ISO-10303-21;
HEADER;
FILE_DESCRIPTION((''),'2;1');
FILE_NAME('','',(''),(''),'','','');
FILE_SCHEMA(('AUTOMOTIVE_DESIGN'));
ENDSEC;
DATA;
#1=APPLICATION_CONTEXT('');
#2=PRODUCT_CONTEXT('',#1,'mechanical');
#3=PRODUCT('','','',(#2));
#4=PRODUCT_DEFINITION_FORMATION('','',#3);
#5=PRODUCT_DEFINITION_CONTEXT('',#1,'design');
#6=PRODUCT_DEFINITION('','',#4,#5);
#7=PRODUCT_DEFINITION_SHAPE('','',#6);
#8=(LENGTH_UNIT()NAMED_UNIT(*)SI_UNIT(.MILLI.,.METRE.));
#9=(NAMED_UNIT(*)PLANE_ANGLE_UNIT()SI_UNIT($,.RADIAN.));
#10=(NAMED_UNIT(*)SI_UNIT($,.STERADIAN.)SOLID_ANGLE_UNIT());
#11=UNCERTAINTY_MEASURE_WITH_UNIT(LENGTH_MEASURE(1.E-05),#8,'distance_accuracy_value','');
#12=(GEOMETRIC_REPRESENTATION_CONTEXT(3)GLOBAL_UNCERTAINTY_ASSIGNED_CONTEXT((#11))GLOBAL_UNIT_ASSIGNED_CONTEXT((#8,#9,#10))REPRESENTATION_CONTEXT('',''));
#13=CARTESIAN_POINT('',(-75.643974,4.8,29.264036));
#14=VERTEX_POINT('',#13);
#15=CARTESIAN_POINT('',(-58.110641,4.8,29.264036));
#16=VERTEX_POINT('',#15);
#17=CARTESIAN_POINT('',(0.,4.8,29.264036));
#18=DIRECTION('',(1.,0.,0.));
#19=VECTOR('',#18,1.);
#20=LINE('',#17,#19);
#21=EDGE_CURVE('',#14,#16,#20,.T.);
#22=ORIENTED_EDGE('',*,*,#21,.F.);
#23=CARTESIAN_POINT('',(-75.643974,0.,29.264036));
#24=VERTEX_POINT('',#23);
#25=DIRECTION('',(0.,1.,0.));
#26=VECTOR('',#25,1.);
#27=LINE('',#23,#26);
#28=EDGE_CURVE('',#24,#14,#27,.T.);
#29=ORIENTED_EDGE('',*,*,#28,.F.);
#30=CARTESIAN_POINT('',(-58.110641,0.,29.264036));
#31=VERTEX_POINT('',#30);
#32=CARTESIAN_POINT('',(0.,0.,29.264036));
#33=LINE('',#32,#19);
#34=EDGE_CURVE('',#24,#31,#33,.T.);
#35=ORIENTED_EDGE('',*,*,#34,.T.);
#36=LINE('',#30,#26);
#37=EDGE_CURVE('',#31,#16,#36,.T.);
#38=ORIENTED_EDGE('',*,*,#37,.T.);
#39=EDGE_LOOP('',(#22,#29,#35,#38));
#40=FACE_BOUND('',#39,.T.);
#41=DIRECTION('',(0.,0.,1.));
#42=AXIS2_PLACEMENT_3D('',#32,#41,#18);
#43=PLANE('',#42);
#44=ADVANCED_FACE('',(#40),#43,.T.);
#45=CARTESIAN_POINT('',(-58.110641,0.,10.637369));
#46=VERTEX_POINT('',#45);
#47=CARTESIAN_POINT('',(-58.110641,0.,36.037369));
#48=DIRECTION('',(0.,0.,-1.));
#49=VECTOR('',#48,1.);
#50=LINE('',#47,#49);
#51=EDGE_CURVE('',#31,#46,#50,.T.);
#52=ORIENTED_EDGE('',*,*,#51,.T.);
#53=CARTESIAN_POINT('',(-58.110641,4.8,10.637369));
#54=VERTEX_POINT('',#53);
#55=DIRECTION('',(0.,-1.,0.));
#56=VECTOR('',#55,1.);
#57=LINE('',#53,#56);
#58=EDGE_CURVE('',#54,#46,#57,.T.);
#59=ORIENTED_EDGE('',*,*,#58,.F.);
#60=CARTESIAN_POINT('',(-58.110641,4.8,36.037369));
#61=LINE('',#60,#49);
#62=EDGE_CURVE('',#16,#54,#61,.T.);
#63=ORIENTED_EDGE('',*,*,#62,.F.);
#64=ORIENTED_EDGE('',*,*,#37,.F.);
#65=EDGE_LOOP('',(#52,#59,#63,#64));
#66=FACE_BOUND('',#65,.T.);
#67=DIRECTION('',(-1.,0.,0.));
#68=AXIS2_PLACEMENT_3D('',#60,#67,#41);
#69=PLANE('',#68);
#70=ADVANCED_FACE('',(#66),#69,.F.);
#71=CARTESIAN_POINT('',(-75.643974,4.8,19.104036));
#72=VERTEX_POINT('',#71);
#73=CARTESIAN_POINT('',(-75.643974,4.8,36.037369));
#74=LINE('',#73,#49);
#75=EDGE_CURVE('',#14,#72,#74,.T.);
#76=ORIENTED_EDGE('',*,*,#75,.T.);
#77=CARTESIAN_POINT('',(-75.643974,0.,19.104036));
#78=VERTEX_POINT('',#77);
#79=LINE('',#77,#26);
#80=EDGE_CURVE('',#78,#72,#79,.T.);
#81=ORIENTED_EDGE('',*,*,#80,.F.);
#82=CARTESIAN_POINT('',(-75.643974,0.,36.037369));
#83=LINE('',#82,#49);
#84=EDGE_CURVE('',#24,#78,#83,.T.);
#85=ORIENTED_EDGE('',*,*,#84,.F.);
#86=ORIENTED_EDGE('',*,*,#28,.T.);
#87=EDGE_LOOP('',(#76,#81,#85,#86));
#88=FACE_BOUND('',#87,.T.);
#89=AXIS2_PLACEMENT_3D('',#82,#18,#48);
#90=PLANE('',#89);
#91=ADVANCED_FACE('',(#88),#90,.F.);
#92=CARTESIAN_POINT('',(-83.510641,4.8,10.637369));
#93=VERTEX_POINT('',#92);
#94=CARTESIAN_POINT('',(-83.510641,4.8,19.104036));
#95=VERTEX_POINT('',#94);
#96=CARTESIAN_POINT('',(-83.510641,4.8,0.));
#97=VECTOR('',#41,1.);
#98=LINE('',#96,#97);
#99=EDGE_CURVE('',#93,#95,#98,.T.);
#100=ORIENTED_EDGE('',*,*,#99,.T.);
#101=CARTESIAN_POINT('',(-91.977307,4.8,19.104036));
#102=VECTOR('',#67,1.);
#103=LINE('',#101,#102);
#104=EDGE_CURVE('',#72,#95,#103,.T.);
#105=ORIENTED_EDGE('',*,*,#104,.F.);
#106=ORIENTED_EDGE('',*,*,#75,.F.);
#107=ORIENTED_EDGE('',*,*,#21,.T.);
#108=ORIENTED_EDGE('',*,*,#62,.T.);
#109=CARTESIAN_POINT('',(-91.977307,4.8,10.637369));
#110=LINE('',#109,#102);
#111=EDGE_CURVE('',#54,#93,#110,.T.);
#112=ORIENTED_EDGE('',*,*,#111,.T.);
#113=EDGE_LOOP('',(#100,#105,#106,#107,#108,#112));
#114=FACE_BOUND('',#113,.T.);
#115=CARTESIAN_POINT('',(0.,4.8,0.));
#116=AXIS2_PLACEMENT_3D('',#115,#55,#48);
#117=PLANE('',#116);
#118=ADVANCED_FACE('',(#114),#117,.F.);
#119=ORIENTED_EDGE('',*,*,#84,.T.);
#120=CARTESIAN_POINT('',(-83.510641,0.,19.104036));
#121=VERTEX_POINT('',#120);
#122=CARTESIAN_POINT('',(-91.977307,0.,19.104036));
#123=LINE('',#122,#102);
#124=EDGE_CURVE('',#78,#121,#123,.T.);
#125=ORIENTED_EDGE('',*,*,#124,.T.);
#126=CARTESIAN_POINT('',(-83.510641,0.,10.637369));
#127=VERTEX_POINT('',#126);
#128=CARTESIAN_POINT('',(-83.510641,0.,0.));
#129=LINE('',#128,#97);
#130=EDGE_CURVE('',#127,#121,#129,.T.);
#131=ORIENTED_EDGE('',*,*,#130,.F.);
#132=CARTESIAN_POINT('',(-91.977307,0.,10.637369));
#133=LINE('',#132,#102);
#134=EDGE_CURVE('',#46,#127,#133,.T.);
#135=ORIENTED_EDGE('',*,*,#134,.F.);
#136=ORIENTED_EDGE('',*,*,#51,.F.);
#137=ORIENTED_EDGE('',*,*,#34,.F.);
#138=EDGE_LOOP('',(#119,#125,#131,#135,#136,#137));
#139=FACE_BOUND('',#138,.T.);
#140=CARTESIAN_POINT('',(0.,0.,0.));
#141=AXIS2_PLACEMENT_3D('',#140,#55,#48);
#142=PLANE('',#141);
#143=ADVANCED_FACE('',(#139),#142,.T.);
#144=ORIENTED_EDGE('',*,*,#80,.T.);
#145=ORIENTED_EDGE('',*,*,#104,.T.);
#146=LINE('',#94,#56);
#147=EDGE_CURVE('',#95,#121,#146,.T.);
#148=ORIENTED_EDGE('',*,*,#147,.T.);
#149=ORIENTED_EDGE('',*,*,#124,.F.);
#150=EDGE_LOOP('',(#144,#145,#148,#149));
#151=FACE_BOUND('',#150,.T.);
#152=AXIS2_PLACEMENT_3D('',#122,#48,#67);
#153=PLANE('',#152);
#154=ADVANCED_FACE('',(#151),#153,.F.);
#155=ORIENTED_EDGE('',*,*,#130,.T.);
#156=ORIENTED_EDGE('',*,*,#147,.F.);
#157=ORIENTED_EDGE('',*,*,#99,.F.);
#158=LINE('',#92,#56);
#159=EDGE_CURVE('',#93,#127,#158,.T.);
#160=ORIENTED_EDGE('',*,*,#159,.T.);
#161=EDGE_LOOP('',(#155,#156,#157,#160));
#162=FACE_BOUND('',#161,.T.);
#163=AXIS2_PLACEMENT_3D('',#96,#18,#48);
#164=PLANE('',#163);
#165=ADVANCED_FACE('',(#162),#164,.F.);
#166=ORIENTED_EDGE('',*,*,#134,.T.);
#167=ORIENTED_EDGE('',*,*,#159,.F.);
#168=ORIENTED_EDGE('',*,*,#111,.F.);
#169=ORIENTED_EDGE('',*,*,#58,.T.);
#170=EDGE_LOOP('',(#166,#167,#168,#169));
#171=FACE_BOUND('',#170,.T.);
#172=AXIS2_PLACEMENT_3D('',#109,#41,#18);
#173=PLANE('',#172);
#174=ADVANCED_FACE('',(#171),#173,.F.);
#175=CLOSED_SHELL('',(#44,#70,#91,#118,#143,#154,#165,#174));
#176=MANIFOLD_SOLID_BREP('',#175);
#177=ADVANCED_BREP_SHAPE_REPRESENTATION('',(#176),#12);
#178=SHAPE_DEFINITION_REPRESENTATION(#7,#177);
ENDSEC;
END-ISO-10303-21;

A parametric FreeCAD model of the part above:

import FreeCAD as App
import Part
import Sketcher
from FreeCAD import Vector
Q = App.Units.Quantity

doc = App.newDocument("Part")
body = doc.addObject("PartDesign::Body", "Body")

sketch1 = body.newObject("Sketcher::SketchObject", "Sketch")
sketch1.AttachmentSupport = (doc.getObject("XZ_Plane"), [""])
sketch1.MapMode = "FlatFace"
sketch1.addGeometry(Part.LineSegment(Vector(-92, 11, 0), Vector(-92, 36, 0)), False)
sketch1.addGeometry(Part.LineSegment(Vector(-92, 36, 0), Vector(-58, 36, 0)), False)
sketch1.addGeometry(Part.LineSegment(Vector(-58, 36, 0), Vector(-58, 11, 0)), False)
sketch1.addGeometry(Part.LineSegment(Vector(-58, 11, 0), Vector(-92, 11, 0)), False)
sketch1.addConstraint(Sketcher.Constraint("Coincident", 0, 2, 1, 1))
sketch1.addConstraint(Sketcher.Constraint("Coincident", 1, 2, 2, 1))
sketch1.addConstraint(Sketcher.Constraint("Coincident", 2, 2, 3, 1))
sketch1.addConstraint(Sketcher.Constraint("Coincident", 3, 2, 0, 1))
sketch1.addConstraint(Sketcher.Constraint("Vertical", 0))
sketch1.addConstraint(Sketcher.Constraint("Horizontal", 1))
sketch1.addConstraint(Sketcher.Constraint("Vertical", 2))
sketch1.addConstraint(Sketcher.Constraint("Horizontal", 3))
sketch1.addConstraint(Sketcher.Constraint("DistanceY", 0, 1, 0, 2, Q("1 in")))
sketch1.addConstraint(Sketcher.Constraint("DistanceX", 1, 1, 1, 2, 33.866667))
sketch1.addConstraint(Sketcher.Constraint("DistanceY", -1, 1, 0, 2, 36.037369))
sketch1.addConstraint(Sketcher.Constraint("DistanceX", 1, 2, -1, 1, 58.110641))
pad1 = body.newObject("PartDesign::Pad", "Pad")
pad1.Profile = sketch1
pad1.Length = 4.8
pad1.Reversed = True

sketch2 = body.newObject("Sketcher::SketchObject", "Sketch001")
sketch2.AttachmentSupport = (doc.getObject("XZ_Plane"), [""])
sketch2.MapMode = "FlatFace"
sketch2.AttachmentOffset = App.Placement(Vector(0, 0, -4.8), App.Rotation())
sketch2.addGeometry(Part.LineSegment(Vector(-92, 19, 0), Vector(-92, 36, 0)), False)
sketch2.addGeometry(Part.LineSegment(Vector(-92, 36, 0), Vector(-76, 36, 0)), False)
sketch2.addGeometry(Part.LineSegment(Vector(-76, 36, 0), Vector(-76, 19, 0)), False)
sketch2.addGeometry(Part.LineSegment(Vector(-76, 19, 0), Vector(-92, 19, 0)), False)
sketch2.addConstraint(Sketcher.Constraint("Coincident", 0, 2, 1, 1))
sketch2.addConstraint(Sketcher.Constraint("Coincident", 1, 2, 2, 1))
sketch2.addConstraint(Sketcher.Constraint("Coincident", 2, 2, 3, 1))
sketch2.addConstraint(Sketcher.Constraint("Coincident", 3, 2, 0, 1))
sketch2.addConstraint(Sketcher.Constraint("Vertical", 0))
sketch2.addConstraint(Sketcher.Constraint("Horizontal", 1))
sketch2.addConstraint(Sketcher.Constraint("Vertical", 2))
sketch2.addConstraint(Sketcher.Constraint("Horizontal", 3))
sketch2.addConstraint(Sketcher.Constraint("DistanceX", 1, 1, 1, 2, 16.333334))
sketch2.addConstraint(Sketcher.Constraint("DistanceY", 0, 1, 0, 2, 16.933333))
sketch2.addConstraint(Sketcher.Constraint("DistanceY", -1, 1, 0, 2, 36.037369))
sketch2.addConstraint(Sketcher.Constraint("DistanceX", 0, 2, -1, 1, 91.977307))
pocket1 = body.newObject("PartDesign::Pocket", "Pocket")
pocket1.Profile = sketch2
pocket1.Type = "ThroughAll"
pocket1.Reversed = True

sketch3 = body.newObject("Sketcher::SketchObject", "Sketch002")
sketch3.AttachmentSupport = (doc.getObject("XZ_Plane"), [""])
sketch3.MapMode = "FlatFace"
sketch3.AttachmentOffset = App.Placement(Vector(0, 0, -4.8), App.Rotation())
sketch3.addGeometry(Part.LineSegment(Vector(-97, 5, 0), Vector(-97, 41, 0)), False)
sketch3.addGeometry(Part.LineSegment(Vector(-97, 41, 0), Vector(-53, 41, 0)), False)
sketch3.addGeometry(Part.LineSegment(Vector(-53, 41, 0), Vector(-53, 5, 0)), False)
sketch3.addGeometry(Part.LineSegment(Vector(-53, 5, 0), Vector(-97, 5, 0)), False)
sketch3.addGeometry(Part.LineSegment(Vector(-76, 19, 0), Vector(-92, 19, 0)), False)
sketch3.addGeometry(Part.LineSegment(Vector(-92, 19, 0), Vector(-92, 11, 0)), False)
sketch3.addGeometry(Part.LineSegment(Vector(-92, 11, 0), Vector(-58, 11, 0)), False)
sketch3.addGeometry(Part.LineSegment(Vector(-58, 11, 0), Vector(-58, 29, 0)), False)
sketch3.addGeometry(Part.LineSegment(Vector(-58, 29, 0), Vector(-76, 29, 0)), False)
sketch3.addGeometry(Part.LineSegment(Vector(-76, 29, 0), Vector(-76, 19, 0)), False)
sketch3.addConstraint(Sketcher.Constraint("Coincident", 0, 2, 1, 1))
sketch3.addConstraint(Sketcher.Constraint("Coincident", 1, 2, 2, 1))
sketch3.addConstraint(Sketcher.Constraint("Coincident", 2, 2, 3, 1))
sketch3.addConstraint(Sketcher.Constraint("Coincident", 3, 2, 0, 1))
sketch3.addConstraint(Sketcher.Constraint("Coincident", 4, 2, 5, 1))
sketch3.addConstraint(Sketcher.Constraint("Coincident", 5, 2, 6, 1))
sketch3.addConstraint(Sketcher.Constraint("Coincident", 6, 2, 7, 1))
sketch3.addConstraint(Sketcher.Constraint("Coincident", 7, 2, 8, 1))
sketch3.addConstraint(Sketcher.Constraint("Coincident", 8, 2, 9, 1))
sketch3.addConstraint(Sketcher.Constraint("Coincident", 9, 2, 4, 1))
sketch3.addConstraint(Sketcher.Constraint("Vertical", 0))
sketch3.addConstraint(Sketcher.Constraint("Horizontal", 1))
sketch3.addConstraint(Sketcher.Constraint("Vertical", 2))
sketch3.addConstraint(Sketcher.Constraint("Horizontal", 3))
sketch3.addConstraint(Sketcher.Constraint("Horizontal", 4))
sketch3.addConstraint(Sketcher.Constraint("Vertical", 5))
sketch3.addConstraint(Sketcher.Constraint("Horizontal", 6))
sketch3.addConstraint(Sketcher.Constraint("Vertical", 7))
sketch3.addConstraint(Sketcher.Constraint("Horizontal", 8))
sketch3.addConstraint(Sketcher.Constraint("Vertical", 9))
sketch3.addConstraint(Sketcher.Constraint("DistanceY", 9, 2, 9, 1, Q("0.4 in")))
sketch3.addConstraint(Sketcher.Constraint("DistanceX", 1, 1, 1, 2, 44.386))
sketch3.addConstraint(Sketcher.Constraint("DistanceY", 0, 1, 0, 2, 35.92))
sketch3.addConstraint(Sketcher.Constraint("DistanceX", 0, 2, -1, 1, 97.237))
sketch3.addConstraint(Sketcher.Constraint("DistanceY", -1, 1, 0, 2, 41.297))
sketch3.addConstraint(Sketcher.Constraint("DistanceX", 4, 2, 4, 1, 16.333334))
sketch3.addConstraint(Sketcher.Constraint("DistanceX", 6, 1, 6, 2, 33.866667))
sketch3.addConstraint(Sketcher.Constraint("DistanceY", 5, 2, 5, 1, 8.466667))
sketch3.addConstraint(Sketcher.Constraint("DistanceY", -1, 1, 5, 2, 10.637369))
sketch3.addConstraint(Sketcher.Constraint("DistanceX", 6, 2, -1, 1, 58.110641))
pocket2 = body.newObject("PartDesign::Pocket", "Pocket001")
pocket2.Profile = sketch3
pocket2.Type = "ThroughAll"
pocket2.Reversed = True

sketch4 = body.newObject("Sketcher::SketchObject", "Sketch003")
sketch4.AttachmentSupport = (doc.getObject("XZ_Plane"), [""])
sketch4.MapMode = "FlatFace"
sketch4.addGeometry(Part.LineSegment(Vector(-92, 11, 0), Vector(-84, 11, 0)), False)
sketch4.addGeometry(Part.LineSegment(Vector(-84, 11, 0), Vector(-84, 19, 0)), False)
sketch4.addGeometry(Part.LineSegment(Vector(-84, 19, 0), Vector(-92, 19, 0)), False)
sketch4.addGeometry(Part.LineSegment(Vector(-92, 19, 0), Vector(-92, 11, 0)), False)
sketch4.addConstraint(Sketcher.Constraint("Coincident", 0, 2, 1, 1))
sketch4.addConstraint(Sketcher.Constraint("Coincident", 1, 2, 2, 1))
sketch4.addConstraint(Sketcher.Constraint("Coincident", 2, 2, 3, 1))
sketch4.addConstraint(Sketcher.Constraint("Coincident", 3, 2, 0, 1))
sketch4.addConstraint(Sketcher.Constraint("Horizontal", 0))
sketch4.addConstraint(Sketcher.Constraint("Vertical", 1))
sketch4.addConstraint(Sketcher.Constraint("Horizontal", 2))
sketch4.addConstraint(Sketcher.Constraint("Vertical", 3))
sketch4.addConstraint(Sketcher.Constraint("Equal", 2, 1))
sketch4.addConstraint(Sketcher.Constraint("DistanceX", 0, 1, 0, 2, 8.466667))
sketch4.addConstraint(Sketcher.Constraint("DistanceX", 0, 2, -1, 1, 83.510641))
sketch4.addConstraint(Sketcher.Constraint("DistanceY", -1, 1, 0, 2, 10.637369))
pocket3 = body.newObject("PartDesign::Pocket", "Pocket002")
pocket3.Profile = sketch4
pocket3.Type = "ThroughAll"

doc.recompute()
